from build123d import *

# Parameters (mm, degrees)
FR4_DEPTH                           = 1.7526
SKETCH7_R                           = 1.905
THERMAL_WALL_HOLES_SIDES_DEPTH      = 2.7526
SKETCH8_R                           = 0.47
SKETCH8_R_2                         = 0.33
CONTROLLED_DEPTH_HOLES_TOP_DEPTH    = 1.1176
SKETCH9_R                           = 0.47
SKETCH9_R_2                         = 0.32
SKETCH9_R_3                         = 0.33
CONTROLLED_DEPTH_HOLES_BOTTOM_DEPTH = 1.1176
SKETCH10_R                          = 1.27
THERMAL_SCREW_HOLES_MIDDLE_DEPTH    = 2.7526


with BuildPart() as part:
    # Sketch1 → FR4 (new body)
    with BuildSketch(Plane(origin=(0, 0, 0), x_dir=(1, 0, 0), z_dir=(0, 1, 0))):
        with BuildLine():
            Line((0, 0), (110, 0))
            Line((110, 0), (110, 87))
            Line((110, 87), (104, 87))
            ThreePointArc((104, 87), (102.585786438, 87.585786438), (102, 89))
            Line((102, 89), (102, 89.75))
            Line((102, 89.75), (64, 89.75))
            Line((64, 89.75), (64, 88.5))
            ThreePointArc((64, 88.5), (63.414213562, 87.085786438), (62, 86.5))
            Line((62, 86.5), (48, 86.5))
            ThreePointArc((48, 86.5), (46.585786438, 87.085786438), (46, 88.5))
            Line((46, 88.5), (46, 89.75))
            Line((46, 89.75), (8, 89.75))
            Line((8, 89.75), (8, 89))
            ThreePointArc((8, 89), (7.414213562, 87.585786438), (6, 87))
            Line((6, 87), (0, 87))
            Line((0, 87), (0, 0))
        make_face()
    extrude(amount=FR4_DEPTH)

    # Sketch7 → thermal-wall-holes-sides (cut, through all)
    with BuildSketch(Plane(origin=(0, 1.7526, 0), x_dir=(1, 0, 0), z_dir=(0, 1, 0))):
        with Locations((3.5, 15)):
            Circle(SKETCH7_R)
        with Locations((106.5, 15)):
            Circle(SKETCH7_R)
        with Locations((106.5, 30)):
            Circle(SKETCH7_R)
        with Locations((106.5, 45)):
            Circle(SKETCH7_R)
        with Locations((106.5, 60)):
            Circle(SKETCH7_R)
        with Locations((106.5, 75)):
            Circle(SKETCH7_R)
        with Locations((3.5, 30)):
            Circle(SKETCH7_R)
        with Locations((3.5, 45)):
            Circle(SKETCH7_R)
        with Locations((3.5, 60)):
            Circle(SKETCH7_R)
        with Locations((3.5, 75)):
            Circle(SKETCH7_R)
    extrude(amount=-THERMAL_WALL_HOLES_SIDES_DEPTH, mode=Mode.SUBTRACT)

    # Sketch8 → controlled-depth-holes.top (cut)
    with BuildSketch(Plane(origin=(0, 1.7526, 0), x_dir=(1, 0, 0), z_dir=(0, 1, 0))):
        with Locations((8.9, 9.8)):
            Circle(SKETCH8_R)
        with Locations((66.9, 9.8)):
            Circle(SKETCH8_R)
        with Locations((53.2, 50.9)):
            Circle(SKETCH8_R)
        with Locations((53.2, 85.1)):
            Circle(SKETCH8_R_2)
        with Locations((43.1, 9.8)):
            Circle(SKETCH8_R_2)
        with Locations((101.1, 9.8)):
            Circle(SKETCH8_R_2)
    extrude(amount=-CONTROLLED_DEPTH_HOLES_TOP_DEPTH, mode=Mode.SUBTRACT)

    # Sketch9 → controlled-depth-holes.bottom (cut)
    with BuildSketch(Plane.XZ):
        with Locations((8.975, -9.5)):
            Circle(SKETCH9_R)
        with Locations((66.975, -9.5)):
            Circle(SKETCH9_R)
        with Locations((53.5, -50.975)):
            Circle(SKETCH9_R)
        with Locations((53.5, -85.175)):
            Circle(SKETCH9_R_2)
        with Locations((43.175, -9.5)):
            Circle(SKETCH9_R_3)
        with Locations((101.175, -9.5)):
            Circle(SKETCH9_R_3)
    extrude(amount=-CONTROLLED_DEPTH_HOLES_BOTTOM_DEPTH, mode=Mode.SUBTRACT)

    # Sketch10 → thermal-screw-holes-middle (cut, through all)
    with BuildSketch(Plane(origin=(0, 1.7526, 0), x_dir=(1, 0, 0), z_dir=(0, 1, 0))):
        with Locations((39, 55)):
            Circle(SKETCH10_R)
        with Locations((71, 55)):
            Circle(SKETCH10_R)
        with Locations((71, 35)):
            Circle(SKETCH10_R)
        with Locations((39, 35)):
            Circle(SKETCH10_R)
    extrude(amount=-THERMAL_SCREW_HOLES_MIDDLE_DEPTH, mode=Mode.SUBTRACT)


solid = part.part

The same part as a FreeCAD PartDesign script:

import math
import FreeCAD as App
import Part
import Sketcher

doc = App.newDocument("Part")
body = doc.addObject("PartDesign::Body", "Body")

sketch1 = body.newObject("Sketcher::SketchObject", "Sketch")
sketch1.AttachmentSupport = (doc.getObject("XZ_Plane"), [""])
sketch1.MapMode = "FlatFace"
sketch1.addGeometry([
    Part.LineSegment(App.Vector(0, 0, 0), App.Vector(110, 0, 0)),
    Part.LineSegment(App.Vector(110, 0, 0), App.Vector(110, -87, 0)),
    Part.LineSegment(App.Vector(110, -87, 0), App.Vector(104, -87, 0)),
    Part.ArcOfCircle(Part.Circle(App.Vector(104, -89, 0), App.Vector(0, 0, 1), 2), math.radians(90), math.radians(180)),
    Part.LineSegment(App.Vector(102, -89, 0), App.Vector(102, -89.8, 0)),
    Part.LineSegment(App.Vector(102, -89.8, 0), App.Vector(64, -89.8, 0)),
    Part.LineSegment(App.Vector(64, -89.8, 0), App.Vector(64, -88.5, 0)),
    Part.ArcOfCircle(Part.Circle(App.Vector(62, -88.5, 0), App.Vector(0, 0, 1), 2), math.radians(0), math.radians(90)),
    Part.LineSegment(App.Vector(62, -86.5, 0), App.Vector(48, -86.5, 0)),
    Part.ArcOfCircle(Part.Circle(App.Vector(48, -88.5, 0), App.Vector(0, 0, 1), 2), math.radians(90), math.radians(180)),
    Part.LineSegment(App.Vector(46, -88.5, 0), App.Vector(46, -89.8, 0)),
    Part.LineSegment(App.Vector(46, -89.8, 0), App.Vector(8, -89.8, 0)),
    Part.LineSegment(App.Vector(8, -89.8, 0), App.Vector(8, -89, 0)),
    Part.ArcOfCircle(Part.Circle(App.Vector(6, -89, 0), App.Vector(0, 0, 1), 2), math.radians(0), math.radians(90)),
    Part.LineSegment(App.Vector(6, -87, 0), App.Vector(0, -87, 0)),
    Part.LineSegment(App.Vector(0, -87, 0), App.Vector(0, 0, 0)),
], False)
sketch1.addConstraint([
    Sketcher.Constraint("Coincident", 0, 2, 1, 1),
    Sketcher.Constraint("Coincident", 1, 2, 2, 1),
    Sketcher.Constraint("Tangent", 2, 2, 3, 1),
    Sketcher.Constraint("Tangent", 3, 2, 4, 1),
    Sketcher.Constraint("Coincident", 4, 2, 5, 1),
    Sketcher.Constraint("Coincident", 5, 2, 6, 1),
    Sketcher.Constraint("Tangent", 6, 2, 7, 1),
    Sketcher.Constraint("Tangent", 7, 2, 8, 1),
    Sketcher.Constraint("Tangent", 8, 2, 9, 1),
    Sketcher.Constraint("Tangent", 9, 2, 10, 1),
    Sketcher.Constraint("Coincident", 10, 2, 11, 1),
    Sketcher.Constraint("Coincident", 11, 2, 12, 1),
    Sketcher.Constraint("Tangent", 12, 2, 13, 1),
    Sketcher.Constraint("Tangent", 13, 2, 14, 1),
    Sketcher.Constraint("Coincident", 14, 2, 15, 1),
    Sketcher.Constraint("Coincident", 15, 2, 0, 1),
    Sketcher.Constraint("Horizontal", 0),
    Sketcher.Constraint("Vertical", 1),
    Sketcher.Constraint("Horizontal", 2),
    Sketcher.Constraint("Vertical", 4),
    Sketcher.Constraint("Horizontal", 5),
    Sketcher.Constraint("Vertical", 6),
    Sketcher.Constraint("Horizontal", 8),
    Sketcher.Constraint("Vertical", 10),
    Sketcher.Constraint("Horizontal", 11),
    Sketcher.Constraint("Vertical", 12),
    Sketcher.Constraint("Horizontal", 14),
    Sketcher.Constraint("Vertical", 15),
    Sketcher.Constraint("Coincident", 15, 2, -1, 1),
    Sketcher.Constraint("Equal", 3, 7),
    Sketcher.Constraint("Equal", 7, 9),
    Sketcher.Constraint("Equal", 9, 13),
    Sketcher.Constraint("Horizontal", 3, 3, 13, 3),
    Sketcher.Constraint("Horizontal", 5, 2, 10, 2),
    Sketcher.Constraint("Equal", 5, 11),
    Sketcher.Constraint("Equal", 2, 14),
    Sketcher.Constraint("Radius", 3, 2.0),
    Sketcher.Constraint("DistanceX", 0, 1, 0, 2, 110.0),
    Sketcher.Constraint("DistanceX", 2, 2, 2, 1, 6.0),
    Sketcher.Constraint("DistanceX", 5, 2, 5, 1, 38.0),
    Sketcher.Constraint("DistanceY", 1, 2, 1, 1, 87.0),
    Sketcher.Constraint("DistanceY", 4, 2, 4, 1, 0.75),
    Sketcher.Constraint("DistanceY", 6, 1, 6, 2, 1.25),
])
pad1 = body.newObject("PartDesign::Pad", "Pad")
pad1.Profile = sketch1
pad1.Length = 1.7526
pad1.Reversed = True

sketch2 = body.newObject("Sketcher::SketchObject", "Sketch001")
sketch2.AttachmentSupport = (doc.getObject("XZ_Plane"), [""])
sketch2.MapMode = "FlatFace"
sketch2.AttachmentOffset = App.Placement(App.Vector(0, 0, -1.7526), App.Rotation())
sketch2.addGeometry([
    Part.Circle(App.Vector(3.5, -15, 0), App.Vector(0, 0, 1), 1.9),
    Part.Circle(App.Vector(106.5, -15, 0), App.Vector(0, 0, 1), 1.9),
    Part.Circle(App.Vector(106.5, -30, 0), App.Vector(0, 0, 1), 1.9),
    Part.Circle(App.Vector(106.5, -45, 0), App.Vector(0, 0, 1), 1.9),
    Part.Circle(App.Vector(106.5, -60, 0), App.Vector(0, 0, 1), 1.9),
    Part.Circle(App.Vector(106.5, -75, 0), App.Vector(0, 0, 1), 1.9),
    Part.Circle(App.Vector(3.5, -30, 0), App.Vector(0, 0, 1), 1.9),
    Part.Circle(App.Vector(3.5, -45, 0), App.Vector(0, 0, 1), 1.9),
    Part.Circle(App.Vector(3.5, -60, 0), App.Vector(0, 0, 1), 1.9),
    Part.Circle(App.Vector(3.5, -75, 0), App.Vector(0, 0, 1), 1.9),
], False)
sketch2.addConstraint([
    Sketcher.Constraint("Equal", 0, 1),
    Sketcher.Constraint("Equal", 1, 2),
    Sketcher.Constraint("Equal", 2, 3),
    Sketcher.Constraint("Equal", 3, 4),
    Sketcher.Constraint("Equal", 4, 5),
    Sketcher.Constraint("Equal", 5, 6),
    Sketcher.Constraint("Equal", 6, 7),
    Sketcher.Constraint("Equal", 7, 8),
    Sketcher.Constraint("Equal", 8, 9),
    Sketcher.Constraint("Horizontal", 0, 3, 1, 3),
    Sketcher.Constraint("Horizontal", 2, 3, 6, 3),
    Sketcher.Constraint("Horizontal", 3, 3, 7, 3),
    Sketcher.Constraint("Horizontal", 4, 3, 8, 3),
    Sketcher.Constraint("Horizontal", 5, 3, 9, 3),
    Sketcher.Constraint("Vertical", 1, 3, 2, 3),
    Sketcher.Constraint("Vertical", 2, 3, 3, 3),
    Sketcher.Constraint("Vertical", 3, 3, 4, 3),
    Sketcher.Constraint("Vertical", 4, 3, 5, 3),
    Sketcher.Constraint("Vertical", 0, 3, 6, 3),
    Sketcher.Constraint("Vertical", 6, 3, 7, 3),
    Sketcher.Constraint("Vertical", 7, 3, 8, 3),
    Sketcher.Constraint("Vertical", 8, 3, 9, 3),
    Sketcher.Constraint("Diameter", 0, 3.81),
    Sketcher.Constraint("DistanceY", 0, 3, -1, 1, 15.0),
    Sketcher.Constraint("DistanceY", 2, 3, -1, 1, 30.0),
    Sketcher.Constraint("DistanceY", 3, 3, -1, 1, 45.0),
    Sketcher.Constraint("DistanceY", 4, 3, -1, 1, 60.0),
    Sketcher.Constraint("DistanceY", 5, 3, -1, 1, 75.0),
    Sketcher.Constraint("DistanceX", 0, 3, 1, 3, 103.0),
    Sketcher.Constraint("DistanceX", -1, 1, 0, 3, 3.5),
])
pocket1 = body.newObject("PartDesign::Pocket", "Pocket")
pocket1.Profile = sketch2
pocket1.Type = "ThroughAll"
pocket1.Reversed = True

sketch3 = body.newObject("Sketcher::SketchObject", "Sketch002")
sketch3.AttachmentSupport = (doc.getObject("XZ_Plane"), [""])
sketch3.MapMode = "FlatFace"
sketch3.AttachmentOffset = App.Placement(App.Vector(0, 0, -1.7526), App.Rotation())
sketch3.addGeometry([
    Part.Circle(App.Vector(8.9, -9.8, 0), App.Vector(0, 0, 1), 0.47),
    Part.Circle(App.Vector(66.9, -9.8, 0), App.Vector(0, 0, 1), 0.47),
    Part.Circle(App.Vector(53.2, -50.9, 0), App.Vector(0, 0, 1), 0.47),
    Part.Circle(App.Vector(53.2, -85.1, 0), App.Vector(0, 0, 1), 0.33),
    Part.Circle(App.Vector(43.1, -9.8, 0), App.Vector(0, 0, 1), 0.33),
    Part.Circle(App.Vector(101.1, -9.8, 0), App.Vector(0, 0, 1), 0.33),
], False)
sketch3.addConstraint([
    Sketcher.Constraint("Equal", 0, 1),
    Sketcher.Constraint("Equal", 1, 2),
    Sketcher.Constraint("Equal", 3, 4),
    Sketcher.Constraint("Equal", 4, 5),
    Sketcher.Constraint("Horizontal", 0, 3, 1, 3),
    Sketcher.Constraint("Horizontal", 1, 3, 4, 3),
    Sketcher.Constraint("Horizontal", 4, 3, 5, 3),
    Sketcher.Constraint("Vertical", 2, 3, 3, 3),
    Sketcher.Constraint("Diameter", 0, 0.94),
    Sketcher.Constraint("Diameter", 3, 0.66),
    Sketcher.Constraint("DistanceX", 0, 3, 1, 3, 58.0),
    Sketcher.Constraint("DistanceX", 4, 3, 5, 3, 58.0),
    Sketcher.Constraint("DistanceX", -1, 1, 0, 3, 8.9),
    Sketcher.Constraint("DistanceY", 0, 3, -1, 1, 9.8),
    Sketcher.Constraint("DistanceX", -1, 1, 2, 3, 53.2),
    Sketcher.Constraint("DistanceY", 2, 3, -1, 1, 50.9),
    Sketcher.Constraint("DistanceY", 3, 3, -1, 1, 85.1),
    Sketcher.Constraint("DistanceX", -1, 1, 4, 3, 43.1),
])
pocket2 = body.newObject("PartDesign::Pocket", "Pocket001")
pocket2.Profile = sketch3
pocket2.Length = 1.1176
pocket2.Reversed = True

sketch4 = body.newObject("Sketcher::SketchObject", "Sketch003")
sketch4.AttachmentSupport = (doc.getObject("XZ_Plane"), [""])
sketch4.MapMode = "FlatFace"
sketch4.addGeometry([
    Part.Circle(App.Vector(8.97, -9.5, 0), App.Vector(0, 0, 1), 0.47),
    Part.Circle(App.Vector(66.97, -9.5, 0), App.Vector(0, 0, 1), 0.47),
    Part.Circle(App.Vector(53.5, -50.98, 0), App.Vector(0, 0, 1), 0.47),
    Part.Circle(App.Vector(53.5, -85.17, 0), App.Vector(0, 0, 1), 0.32),
    Part.Circle(App.Vector(43.17, -9.5, 0), App.Vector(0, 0, 1), 0.33),
    Part.Circle(App.Vector(101.17, -9.5, 0), App.Vector(0, 0, 1), 0.33),
], False)
sketch4.addConstraint([
    Sketcher.Constraint("Equal", 0, 1),
    Sketcher.Constraint("Equal", 1, 2),
    Sketcher.Constraint("Equal", 4, 5),
    Sketcher.Constraint("Horizontal", 0, 3, 1, 3),
    Sketcher.Constraint("Horizontal", 1, 3, 4, 3),
    Sketcher.Constraint("Horizontal", 4, 3, 5, 3),
    Sketcher.Constraint("Vertical", 2, 3, 3, 3),
    Sketcher.Constraint("Diameter", 0, 0.94),
    Sketcher.Constraint("Diameter", 3, 0.64),
    Sketcher.Constraint("Diameter", 4, 0.66),
    Sketcher.Constraint("DistanceX", 0, 3, 1, 3, 58.0),
    Sketcher.Constraint("DistanceX", 4, 3, 5, 3, 58.0),
    Sketcher.Constraint("DistanceY", 0, 3, -1, 1, 9.5),
    Sketcher.Constraint("DistanceX", -1, 1, 2, 3, 53.5),
    Sketcher.Constraint("DistanceY", 3, 3, 2, 3, 34.2),
    Sketcher.Constraint("DistanceX", 4, 3, 1, 3, 23.8),
    Sketcher.Constraint("DistanceX", -1, 1, 0, 3, 8.975),
    Sketcher.Constraint("DistanceY", 2, 3, -1, 1, 50.975),
])
pocket3 = body.newObject("PartDesign::Pocket", "Pocket002")
pocket3.Profile = sketch4
pocket3.Length = 1.1176

sketch5 = body.newObject("Sketcher::SketchObject", "Sketch004")
sketch5.AttachmentSupport = (doc.getObject("XZ_Plane"), [""])
sketch5.MapMode = "FlatFace"
sketch5.AttachmentOffset = App.Placement(App.Vector(0, 0, -1.7526), App.Rotation())
sketch5.addGeometry([
    Part.Circle(App.Vector(39, -55, 0), App.Vector(0, 0, 1), 1.3),
    Part.Circle(App.Vector(71, -55, 0), App.Vector(0, 0, 1), 1.3),
    Part.Circle(App.Vector(71, -35, 0), App.Vector(0, 0, 1), 1.3),
    Part.Circle(App.Vector(39, -35, 0), App.Vector(0, 0, 1), 1.3),
], False)
sketch5.addConstraint([
    Sketcher.Constraint("Equal", 0, 1),
    Sketcher.Constraint("Equal", 1, 2),
    Sketcher.Constraint("Equal", 2, 3),
    Sketcher.Constraint("Horizontal", 0, 3, 1, 3),
    Sketcher.Constraint("Horizontal", 2, 3, 3, 3),
    Sketcher.Constraint("Vertical", 1, 3, 2, 3),
    Sketcher.Constraint("Vertical", 0, 3, 3, 3),
    Sketcher.Constraint("Diameter", 0, 2.54),
    Sketcher.Constraint("DistanceX", -1, 1, 0, 3, 39.0),
    Sketcher.Constraint("DistanceY", 0, 3, -1, 1, 55.0),
    Sketcher.Constraint("DistanceX", -1, 1, 1, 3, 71.0),
    Sketcher.Constraint("DistanceY", 2, 3, -1, 1, 35.0),
])
pocket4 = body.newObject("PartDesign::Pocket", "Pocket003")
pocket4.Profile = sketch5
pocket4.Type = "ThroughAll"
pocket4.Reversed = True

doc.recompute()
